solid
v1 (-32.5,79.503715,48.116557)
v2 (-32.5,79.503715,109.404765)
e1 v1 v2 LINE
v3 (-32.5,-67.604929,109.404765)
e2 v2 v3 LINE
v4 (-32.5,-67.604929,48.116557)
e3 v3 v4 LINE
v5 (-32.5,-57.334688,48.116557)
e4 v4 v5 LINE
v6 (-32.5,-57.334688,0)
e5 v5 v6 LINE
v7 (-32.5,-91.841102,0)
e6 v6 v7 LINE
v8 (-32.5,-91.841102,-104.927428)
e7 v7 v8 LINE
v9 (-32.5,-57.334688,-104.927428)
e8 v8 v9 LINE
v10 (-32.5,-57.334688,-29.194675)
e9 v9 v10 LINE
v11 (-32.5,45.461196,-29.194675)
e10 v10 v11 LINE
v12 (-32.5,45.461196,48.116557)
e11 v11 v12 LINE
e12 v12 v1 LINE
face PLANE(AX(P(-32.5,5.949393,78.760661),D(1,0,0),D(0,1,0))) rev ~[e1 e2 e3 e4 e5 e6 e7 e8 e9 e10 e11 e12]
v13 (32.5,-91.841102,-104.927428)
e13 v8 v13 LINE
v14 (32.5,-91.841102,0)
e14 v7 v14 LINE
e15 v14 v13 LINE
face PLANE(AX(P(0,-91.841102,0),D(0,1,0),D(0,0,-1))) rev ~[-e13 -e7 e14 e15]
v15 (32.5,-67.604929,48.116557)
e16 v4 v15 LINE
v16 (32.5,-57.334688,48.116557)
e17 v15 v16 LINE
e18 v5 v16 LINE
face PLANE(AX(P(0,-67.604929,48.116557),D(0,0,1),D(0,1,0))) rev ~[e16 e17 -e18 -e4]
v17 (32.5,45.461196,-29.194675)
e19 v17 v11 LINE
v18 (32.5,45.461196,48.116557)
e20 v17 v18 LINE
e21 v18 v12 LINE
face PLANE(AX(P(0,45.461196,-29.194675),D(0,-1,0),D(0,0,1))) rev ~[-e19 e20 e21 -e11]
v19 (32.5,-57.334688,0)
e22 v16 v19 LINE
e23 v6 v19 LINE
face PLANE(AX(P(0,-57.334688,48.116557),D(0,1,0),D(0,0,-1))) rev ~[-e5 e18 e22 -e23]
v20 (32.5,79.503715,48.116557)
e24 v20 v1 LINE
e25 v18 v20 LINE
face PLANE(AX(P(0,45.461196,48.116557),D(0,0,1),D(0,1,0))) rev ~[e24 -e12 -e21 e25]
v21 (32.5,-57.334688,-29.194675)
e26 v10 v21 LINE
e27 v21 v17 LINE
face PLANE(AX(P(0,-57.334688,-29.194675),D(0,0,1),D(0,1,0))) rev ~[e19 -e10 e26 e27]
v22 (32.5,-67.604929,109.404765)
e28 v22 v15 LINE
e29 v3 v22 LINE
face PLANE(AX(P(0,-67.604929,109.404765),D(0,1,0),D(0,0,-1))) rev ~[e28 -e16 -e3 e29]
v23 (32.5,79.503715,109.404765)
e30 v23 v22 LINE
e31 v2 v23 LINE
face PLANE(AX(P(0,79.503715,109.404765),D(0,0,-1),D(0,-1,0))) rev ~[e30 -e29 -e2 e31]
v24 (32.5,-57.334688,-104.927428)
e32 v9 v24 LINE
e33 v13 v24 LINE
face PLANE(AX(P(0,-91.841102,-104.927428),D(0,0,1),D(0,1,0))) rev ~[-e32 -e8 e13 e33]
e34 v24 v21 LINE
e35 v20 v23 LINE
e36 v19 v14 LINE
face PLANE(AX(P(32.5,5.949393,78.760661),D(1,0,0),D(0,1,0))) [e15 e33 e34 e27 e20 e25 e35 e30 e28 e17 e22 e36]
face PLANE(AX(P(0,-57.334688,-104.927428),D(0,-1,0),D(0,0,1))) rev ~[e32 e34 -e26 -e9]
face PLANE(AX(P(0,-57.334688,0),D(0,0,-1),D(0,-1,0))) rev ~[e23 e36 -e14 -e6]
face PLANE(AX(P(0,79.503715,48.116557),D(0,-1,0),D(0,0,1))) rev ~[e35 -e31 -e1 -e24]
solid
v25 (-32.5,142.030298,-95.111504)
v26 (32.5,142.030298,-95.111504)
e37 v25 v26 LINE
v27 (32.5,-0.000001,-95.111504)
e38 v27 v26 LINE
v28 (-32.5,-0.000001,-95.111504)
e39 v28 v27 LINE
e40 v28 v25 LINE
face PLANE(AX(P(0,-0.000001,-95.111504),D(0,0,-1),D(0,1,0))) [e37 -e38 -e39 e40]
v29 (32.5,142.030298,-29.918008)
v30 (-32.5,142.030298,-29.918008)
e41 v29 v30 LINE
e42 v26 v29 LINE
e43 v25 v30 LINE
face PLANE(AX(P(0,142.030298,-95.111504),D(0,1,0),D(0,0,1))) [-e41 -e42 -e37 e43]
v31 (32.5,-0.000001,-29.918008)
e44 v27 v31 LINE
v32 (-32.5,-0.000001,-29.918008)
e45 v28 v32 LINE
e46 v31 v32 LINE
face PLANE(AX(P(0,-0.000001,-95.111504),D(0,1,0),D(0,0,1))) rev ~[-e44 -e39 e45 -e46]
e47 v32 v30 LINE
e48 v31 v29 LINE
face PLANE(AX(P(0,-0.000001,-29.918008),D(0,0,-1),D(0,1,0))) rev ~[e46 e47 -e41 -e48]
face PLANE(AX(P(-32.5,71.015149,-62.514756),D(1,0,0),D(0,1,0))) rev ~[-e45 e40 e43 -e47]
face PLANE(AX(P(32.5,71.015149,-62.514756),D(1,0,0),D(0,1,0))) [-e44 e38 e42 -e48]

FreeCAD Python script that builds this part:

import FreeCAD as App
import Part
import Sketcher

doc = App.newDocument("Part")
body = doc.addObject("PartDesign::Body", "Body")
body.AllowCompound = True

sketch1 = doc.addObject("Sketcher::SketchObject", "Sketch")
body.addObject(sketch1)
sketch1.AttachmentSupport = (doc.YZ_Plane, [""])
sketch1.MapMode = "FlatFace"
sketch1.addGeometry(Part.LineSegment(App.Vector(80, 48, 0), App.Vector(80, 109, 0)), False)
sketch1.addGeometry(Part.LineSegment(App.Vector(80, 109, 0), App.Vector(-68, 109, 0)), False)
sketch1.addGeometry(Part.LineSegment(App.Vector(-68, 109, 0), App.Vector(-68, 48, 0)), False)
sketch1.addGeometry(Part.LineSegment(App.Vector(-68, 48, 0), App.Vector(-57, 48, 0)), False)
sketch1.addGeometry(Part.LineSegment(App.Vector(-57, 48, 0), App.Vector(-57, 0, 0)), False)
sketch1.addGeometry(Part.LineSegment(App.Vector(-57, 0, 0), App.Vector(-92, 0, 0)), False)
sketch1.addGeometry(Part.LineSegment(App.Vector(-92, 0, 0), App.Vector(-92, -105, 0)), False)
sketch1.addGeometry(Part.LineSegment(App.Vector(-92, -105, 0), App.Vector(-57, -105, 0)), False)
sketch1.addGeometry(Part.LineSegment(App.Vector(-57, -105, 0), App.Vector(-57, -29, 0)), False)
sketch1.addGeometry(Part.LineSegment(App.Vector(-57, -29, 0), App.Vector(45, -29, 0)), False)
sketch1.addGeometry(Part.LineSegment(App.Vector(45, -29, 0), App.Vector(45, 48, 0)), False)
sketch1.addGeometry(Part.LineSegment(App.Vector(45, 48, 0), App.Vector(80, 48, 0)), False)
sketch1.addGeometry(Part.LineSegment(App.Vector(0, -30, 0), App.Vector(0, -95, 0)), False)
sketch1.addGeometry(Part.LineSegment(App.Vector(0, -95, 0), App.Vector(142, -95, 0)), False)
sketch1.addGeometry(Part.LineSegment(App.Vector(142, -95, 0), App.Vector(142, -30, 0)), False)
sketch1.addGeometry(Part.LineSegment(App.Vector(142, -30, 0), App.Vector(0, -30, 0)), False)
sketch1.addConstraint(Sketcher.Constraint("Coincident", 0, 2, 1, 1))
sketch1.addConstraint(Sketcher.Constraint("Coincident", 1, 2, 2, 1))
sketch1.addConstraint(Sketcher.Constraint("Coincident", 2, 2, 3, 1))
sketch1.addConstraint(Sketcher.Constraint("Coincident", 3, 2, 4, 1))
sketch1.addConstraint(Sketcher.Constraint("Coincident", 4, 2, 5, 1))
sketch1.addConstraint(Sketcher.Constraint("Coincident", 5, 2, 6, 1))
sketch1.addConstraint(Sketcher.Constraint("Coincident", 6, 2, 7, 1))
sketch1.addConstraint(Sketcher.Constraint("Coincident", 7, 2, 8, 1))
sketch1.addConstraint(Sketcher.Constraint("Coincident", 8, 2, 9, 1))
sketch1.addConstraint(Sketcher.Constraint("Coincident", 9, 2, 10, 1))
sketch1.addConstraint(Sketcher.Constraint("Coincident", 10, 2, 11, 1))
sketch1.addConstraint(Sketcher.Constraint("Coincident", 11, 2, 0, 1))
sketch1.addConstraint(Sketcher.Constraint("Coincident", 12, 2, 13, 1))
sketch1.addConstraint(Sketcher.Constraint("Coincident", 13, 2, 14, 1))
sketch1.addConstraint(Sketcher.Constraint("Coincident", 14, 2, 15, 1))
sketch1.addConstraint(Sketcher.Constraint("Coincident", 15, 2, 12, 1))
sketch1.addConstraint(Sketcher.Constraint("Vertical", 0))
sketch1.addConstraint(Sketcher.Constraint("Horizontal", 1))
sketch1.addConstraint(Sketcher.Constraint("Vertical", 2))
sketch1.addConstraint(Sketcher.Constraint("Horizontal", 3))
sketch1.addConstraint(Sketcher.Constraint("Vertical", 4))
sketch1.addConstraint(Sketcher.Constraint("Horizontal", 5))
sketch1.addConstraint(Sketcher.Constraint("Vertical", 6))
sketch1.addConstraint(Sketcher.Constraint("Horizontal", 7))
sketch1.addConstraint(Sketcher.Constraint("Vertical", 8))
sketch1.addConstraint(Sketcher.Constraint("Horizontal", 9))
sketch1.addConstraint(Sketcher.Constraint("Vertical", 10))
sketch1.addConstraint(Sketcher.Constraint("Horizontal", 11))
sketch1.addConstraint(Sketcher.Constraint("Vertical", 12))
sketch1.addConstraint(Sketcher.Constraint("Horizontal", 13))
sketch1.addConstraint(Sketcher.Constraint("Vertical", 14))
sketch1.addConstraint(Sketcher.Constraint("Horizontal", 15))
sketch1.addConstraint(Sketcher.Constraint("PointOnObject", 4, 2, -1))
sketch1.addConstraint(Sketcher.Constraint("PointOnObject", 12, 2, -2))
sketch1.addConstraint(Sketcher.Constraint("Horizontal", 3, 2, 10, 2))
sketch1.addConstraint(Sketcher.Constraint("Vertical", 4, 2, 7, 2))
sketch1.addConstraint(Sketcher.Constraint("DistanceX", 13, 1, 13, 2, 142.030299))
sketch1.addConstraint(Sketcher.Constraint("DistanceX", 3, 1, 3, 2, 10.270241))
sketch1.addConstraint(Sketcher.Constraint("DistanceX", 11, 1, 11, 2, 34.042519))
sketch1.addConstraint(Sketcher.Constraint("DistanceY", 6, 2, 6, 1, 104.927428))
sketch1.addConstraint(Sketcher.Constraint("DistanceX", 6, 2, 12, 2, 91.841102))
sketch1.addConstraint(Sketcher.Constraint("DistanceX", 1, 2, 1, 1, 147.108644))
sketch1.addConstraint(Sketcher.Constraint("DistanceX", 5, 2, 5, 1, 34.506414))
sketch1.addConstraint(Sketcher.Constraint("DistanceY", 0, 1, 0, 2, 61.288208))
sketch1.addConstraint(Sketcher.Constraint("DistanceY", 4, 2, 4, 1, 48.116557))
sketch1.addConstraint(Sketcher.Constraint("DistanceY", 8, 1, 8, 2, 75.732753))
sketch1.addConstraint(Sketcher.Constraint("DistanceY", 12, 2, 12, 1, 65.193496))
sketch1.addConstraint(Sketcher.Constraint("DistanceY", 14, 2, -1, 1, 29.918008))
pad1 = doc.addObject("PartDesign::Pad", "Pad")
body.addObject(pad1)
pad1.Profile = sketch1
pad1.Length = 65
pad1.Midplane = True

doc.recompute()
